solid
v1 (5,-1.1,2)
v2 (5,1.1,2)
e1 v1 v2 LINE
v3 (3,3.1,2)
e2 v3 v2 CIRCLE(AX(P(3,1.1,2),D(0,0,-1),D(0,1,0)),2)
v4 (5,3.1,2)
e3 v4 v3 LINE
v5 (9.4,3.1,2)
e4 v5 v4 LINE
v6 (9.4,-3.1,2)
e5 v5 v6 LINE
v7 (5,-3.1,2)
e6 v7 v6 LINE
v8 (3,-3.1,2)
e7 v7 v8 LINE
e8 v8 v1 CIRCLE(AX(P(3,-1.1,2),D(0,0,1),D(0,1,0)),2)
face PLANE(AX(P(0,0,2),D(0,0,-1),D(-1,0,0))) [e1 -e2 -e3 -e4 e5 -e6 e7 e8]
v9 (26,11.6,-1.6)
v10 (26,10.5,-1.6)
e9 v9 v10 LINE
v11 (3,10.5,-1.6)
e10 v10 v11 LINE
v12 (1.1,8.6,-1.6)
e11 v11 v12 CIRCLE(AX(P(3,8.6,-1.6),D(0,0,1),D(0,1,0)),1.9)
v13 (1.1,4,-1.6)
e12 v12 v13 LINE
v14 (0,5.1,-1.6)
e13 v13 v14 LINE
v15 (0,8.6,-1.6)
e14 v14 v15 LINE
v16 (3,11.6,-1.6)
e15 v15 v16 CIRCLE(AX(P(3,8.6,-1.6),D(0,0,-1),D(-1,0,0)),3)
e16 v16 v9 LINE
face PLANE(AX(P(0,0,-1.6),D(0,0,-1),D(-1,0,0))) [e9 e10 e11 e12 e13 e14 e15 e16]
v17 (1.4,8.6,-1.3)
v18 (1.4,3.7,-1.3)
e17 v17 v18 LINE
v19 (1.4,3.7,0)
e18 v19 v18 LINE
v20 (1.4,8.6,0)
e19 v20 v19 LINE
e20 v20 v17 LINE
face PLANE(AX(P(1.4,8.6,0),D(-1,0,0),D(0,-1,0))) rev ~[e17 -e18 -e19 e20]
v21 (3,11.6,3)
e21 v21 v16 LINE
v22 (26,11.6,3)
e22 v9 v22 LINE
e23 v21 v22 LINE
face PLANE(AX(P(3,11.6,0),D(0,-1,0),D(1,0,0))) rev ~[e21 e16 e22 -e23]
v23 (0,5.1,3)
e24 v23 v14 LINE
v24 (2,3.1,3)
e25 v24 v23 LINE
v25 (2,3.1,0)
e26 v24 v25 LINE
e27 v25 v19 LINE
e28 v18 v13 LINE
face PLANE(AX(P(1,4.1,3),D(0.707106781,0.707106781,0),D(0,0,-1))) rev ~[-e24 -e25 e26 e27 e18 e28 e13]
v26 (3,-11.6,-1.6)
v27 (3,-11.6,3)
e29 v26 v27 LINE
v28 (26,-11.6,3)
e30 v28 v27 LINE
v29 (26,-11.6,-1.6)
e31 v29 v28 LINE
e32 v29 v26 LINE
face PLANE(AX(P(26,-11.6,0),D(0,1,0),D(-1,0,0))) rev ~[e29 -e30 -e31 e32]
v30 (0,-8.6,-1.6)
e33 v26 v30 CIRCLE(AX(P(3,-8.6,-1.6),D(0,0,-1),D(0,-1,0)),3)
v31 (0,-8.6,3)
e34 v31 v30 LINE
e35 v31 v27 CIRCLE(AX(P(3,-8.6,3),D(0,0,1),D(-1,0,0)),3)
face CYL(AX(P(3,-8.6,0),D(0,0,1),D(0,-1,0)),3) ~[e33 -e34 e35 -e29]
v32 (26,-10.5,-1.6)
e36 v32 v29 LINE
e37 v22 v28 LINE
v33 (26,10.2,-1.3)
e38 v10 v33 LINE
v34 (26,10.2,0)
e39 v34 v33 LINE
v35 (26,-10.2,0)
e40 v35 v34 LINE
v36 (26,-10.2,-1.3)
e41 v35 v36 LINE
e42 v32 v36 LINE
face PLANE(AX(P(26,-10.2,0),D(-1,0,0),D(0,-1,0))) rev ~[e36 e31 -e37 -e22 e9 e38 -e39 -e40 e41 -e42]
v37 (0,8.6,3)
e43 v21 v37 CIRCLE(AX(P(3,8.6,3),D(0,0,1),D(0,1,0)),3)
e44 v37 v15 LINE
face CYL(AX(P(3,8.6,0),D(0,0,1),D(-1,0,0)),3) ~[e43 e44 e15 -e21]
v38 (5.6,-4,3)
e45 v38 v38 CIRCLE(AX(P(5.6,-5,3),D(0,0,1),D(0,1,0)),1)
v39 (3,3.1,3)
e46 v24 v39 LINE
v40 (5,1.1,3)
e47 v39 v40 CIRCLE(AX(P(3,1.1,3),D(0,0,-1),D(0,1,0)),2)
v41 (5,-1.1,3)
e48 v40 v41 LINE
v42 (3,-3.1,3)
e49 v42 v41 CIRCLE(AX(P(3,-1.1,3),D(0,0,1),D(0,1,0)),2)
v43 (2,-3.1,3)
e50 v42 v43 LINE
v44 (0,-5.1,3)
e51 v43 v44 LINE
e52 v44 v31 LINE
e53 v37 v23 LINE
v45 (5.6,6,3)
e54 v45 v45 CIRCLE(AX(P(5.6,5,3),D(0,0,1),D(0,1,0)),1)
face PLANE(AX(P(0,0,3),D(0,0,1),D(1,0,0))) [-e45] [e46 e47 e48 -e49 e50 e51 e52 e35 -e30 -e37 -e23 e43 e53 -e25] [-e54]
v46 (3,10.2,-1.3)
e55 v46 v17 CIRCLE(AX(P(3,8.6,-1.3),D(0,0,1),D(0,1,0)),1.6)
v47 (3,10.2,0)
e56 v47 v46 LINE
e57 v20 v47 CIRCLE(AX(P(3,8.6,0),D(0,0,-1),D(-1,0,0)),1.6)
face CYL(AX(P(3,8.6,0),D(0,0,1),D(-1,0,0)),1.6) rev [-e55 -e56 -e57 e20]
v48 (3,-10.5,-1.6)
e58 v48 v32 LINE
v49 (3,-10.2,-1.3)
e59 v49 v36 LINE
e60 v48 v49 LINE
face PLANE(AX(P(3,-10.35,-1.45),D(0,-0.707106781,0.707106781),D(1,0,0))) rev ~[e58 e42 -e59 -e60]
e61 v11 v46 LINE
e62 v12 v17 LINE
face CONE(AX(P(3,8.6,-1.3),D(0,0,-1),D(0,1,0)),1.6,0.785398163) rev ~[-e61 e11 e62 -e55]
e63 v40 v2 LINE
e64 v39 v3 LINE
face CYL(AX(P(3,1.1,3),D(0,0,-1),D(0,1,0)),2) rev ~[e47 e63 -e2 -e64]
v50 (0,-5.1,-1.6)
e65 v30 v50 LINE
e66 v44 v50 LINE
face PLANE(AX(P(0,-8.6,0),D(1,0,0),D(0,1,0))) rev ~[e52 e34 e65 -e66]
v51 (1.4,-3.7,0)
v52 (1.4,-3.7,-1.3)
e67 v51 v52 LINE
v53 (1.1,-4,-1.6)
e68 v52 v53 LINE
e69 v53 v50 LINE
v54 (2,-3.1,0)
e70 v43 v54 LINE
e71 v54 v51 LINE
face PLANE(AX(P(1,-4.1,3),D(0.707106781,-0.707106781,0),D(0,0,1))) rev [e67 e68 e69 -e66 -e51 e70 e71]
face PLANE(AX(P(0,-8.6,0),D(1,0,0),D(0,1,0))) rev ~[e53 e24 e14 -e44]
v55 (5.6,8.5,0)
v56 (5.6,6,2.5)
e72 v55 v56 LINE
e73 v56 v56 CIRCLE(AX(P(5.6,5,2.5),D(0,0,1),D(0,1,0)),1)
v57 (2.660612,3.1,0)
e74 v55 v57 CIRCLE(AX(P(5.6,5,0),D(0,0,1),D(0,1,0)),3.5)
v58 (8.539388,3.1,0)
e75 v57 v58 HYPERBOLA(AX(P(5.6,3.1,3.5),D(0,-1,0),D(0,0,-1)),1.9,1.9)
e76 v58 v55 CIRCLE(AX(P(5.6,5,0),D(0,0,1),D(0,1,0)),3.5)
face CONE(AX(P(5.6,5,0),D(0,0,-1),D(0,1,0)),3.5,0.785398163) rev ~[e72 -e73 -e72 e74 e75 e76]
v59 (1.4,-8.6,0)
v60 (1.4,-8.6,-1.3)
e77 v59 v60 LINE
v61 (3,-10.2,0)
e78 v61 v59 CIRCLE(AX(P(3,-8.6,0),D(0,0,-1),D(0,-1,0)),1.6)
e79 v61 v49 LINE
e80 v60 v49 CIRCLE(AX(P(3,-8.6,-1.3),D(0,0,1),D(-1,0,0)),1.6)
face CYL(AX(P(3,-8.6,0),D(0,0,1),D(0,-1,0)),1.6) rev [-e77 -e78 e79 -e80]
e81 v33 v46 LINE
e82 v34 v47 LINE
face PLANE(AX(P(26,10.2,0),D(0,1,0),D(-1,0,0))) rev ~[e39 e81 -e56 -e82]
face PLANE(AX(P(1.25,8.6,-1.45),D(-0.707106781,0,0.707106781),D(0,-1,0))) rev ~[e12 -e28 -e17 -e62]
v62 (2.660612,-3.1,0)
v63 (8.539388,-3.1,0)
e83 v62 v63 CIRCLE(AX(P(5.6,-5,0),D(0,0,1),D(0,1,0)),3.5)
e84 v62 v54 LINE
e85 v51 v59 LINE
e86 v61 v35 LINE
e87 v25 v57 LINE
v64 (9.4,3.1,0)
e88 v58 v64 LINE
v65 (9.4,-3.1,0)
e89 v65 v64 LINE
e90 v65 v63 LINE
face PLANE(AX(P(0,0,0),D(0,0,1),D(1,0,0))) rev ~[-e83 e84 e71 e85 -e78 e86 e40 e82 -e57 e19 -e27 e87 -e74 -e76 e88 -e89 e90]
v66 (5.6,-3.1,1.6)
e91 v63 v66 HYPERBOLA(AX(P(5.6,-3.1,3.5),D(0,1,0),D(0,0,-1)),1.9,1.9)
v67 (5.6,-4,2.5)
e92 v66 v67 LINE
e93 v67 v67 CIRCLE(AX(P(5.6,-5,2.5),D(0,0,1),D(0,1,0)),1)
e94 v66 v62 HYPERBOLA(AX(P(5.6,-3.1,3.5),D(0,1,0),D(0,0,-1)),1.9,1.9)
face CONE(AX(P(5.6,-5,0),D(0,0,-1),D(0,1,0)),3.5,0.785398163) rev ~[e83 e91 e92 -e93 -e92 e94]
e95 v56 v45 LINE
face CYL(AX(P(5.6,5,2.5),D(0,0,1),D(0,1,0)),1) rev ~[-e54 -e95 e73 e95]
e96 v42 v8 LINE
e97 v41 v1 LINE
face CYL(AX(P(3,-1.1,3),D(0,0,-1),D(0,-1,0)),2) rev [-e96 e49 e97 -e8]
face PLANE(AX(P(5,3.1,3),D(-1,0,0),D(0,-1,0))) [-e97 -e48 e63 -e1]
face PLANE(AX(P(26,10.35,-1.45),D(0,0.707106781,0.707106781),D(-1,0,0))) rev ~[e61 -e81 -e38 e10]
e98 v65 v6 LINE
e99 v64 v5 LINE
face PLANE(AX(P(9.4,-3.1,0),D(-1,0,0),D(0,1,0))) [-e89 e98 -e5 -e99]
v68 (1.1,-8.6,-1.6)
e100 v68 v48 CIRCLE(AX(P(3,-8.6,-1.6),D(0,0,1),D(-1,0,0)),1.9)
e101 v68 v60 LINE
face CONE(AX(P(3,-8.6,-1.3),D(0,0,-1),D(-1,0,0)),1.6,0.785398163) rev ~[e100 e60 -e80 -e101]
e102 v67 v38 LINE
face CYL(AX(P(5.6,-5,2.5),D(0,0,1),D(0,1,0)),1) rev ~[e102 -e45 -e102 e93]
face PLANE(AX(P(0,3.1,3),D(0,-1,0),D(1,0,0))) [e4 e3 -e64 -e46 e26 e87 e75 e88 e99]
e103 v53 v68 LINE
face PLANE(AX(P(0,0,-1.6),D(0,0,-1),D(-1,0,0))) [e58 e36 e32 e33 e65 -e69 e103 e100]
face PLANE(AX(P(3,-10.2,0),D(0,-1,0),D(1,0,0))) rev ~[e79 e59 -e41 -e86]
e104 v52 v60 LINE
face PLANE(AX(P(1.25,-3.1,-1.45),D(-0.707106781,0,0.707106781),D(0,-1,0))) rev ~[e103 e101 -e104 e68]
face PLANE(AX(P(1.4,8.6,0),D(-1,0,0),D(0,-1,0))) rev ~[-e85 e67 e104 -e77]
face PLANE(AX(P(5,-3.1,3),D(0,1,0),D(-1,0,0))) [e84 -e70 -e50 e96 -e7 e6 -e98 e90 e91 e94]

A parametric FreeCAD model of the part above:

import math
import FreeCAD as App
import Part
import Sketcher
from FreeCAD import Vector
Q = App.Units.Quantity


def edges_at(feature, points):
    """Names of the edges that pass closest to the given points."""
    edges = feature.Shape.Edges
    near = lambda p: min(range(len(edges)), key=lambda i: edges[i].distToShape(Part.Vertex(*p))[0])
    return sorted({f"Edge{near(p) + 1}" for p in points})


def add_polygon(sketch, points):
    """Adds a closed chain of lines whose ends are joined by coincident constraints."""
    first, n = sketch.GeometryCount, len(points)
    for a, b in zip(points, points[1:] + points[:1]):
        sketch.addGeometry(Part.LineSegment(App.Vector(*a, 0), App.Vector(*b, 0)), False)
    for i in range(n):
        sketch.addConstraint(Sketcher.Constraint("Coincident", first + i, 2, first + (i + 1) % n, 1))

doc = App.newDocument("Part")
body = doc.addObject("PartDesign::Body", "Body")

# Sketch on XY plane
sketch1 = doc.addObject("Sketcher::SketchObject", "Sketch")
body.addObject(sketch1)
sketch1.AttachmentSupport = (doc.XY_Plane, [""])
sketch1.MapMode = "FlatFace"
sketch1.addGeometry([
    Part.LineSegment(Vector(26, 11.6, 0), Vector(3, 11.6, 0)),  # 0
    Part.ArcOfCircle(Part.Circle(Vector(3, 8.6, 0), Vector(0, 0, 1), 3), math.radians(90), math.radians(180)),  # 1
    Part.LineSegment(Vector(0, 8.6, 0), Vector(0, -8.6, 0)),  # 2
    Part.ArcOfCircle(Part.Circle(Vector(3, -8.6, 0), Vector(0, 0, 1), 3), math.radians(180), math.radians(270)),  # 3
    Part.LineSegment(Vector(3, -11.6, 0), Vector(26, -11.6, 0)),  # 4
    Part.LineSegment(Vector(26, -11.6, 0), Vector(26, 11.6, 0)),  # 5
], False)
sketch1.addConstraint([
    Sketcher.Constraint("Tangent", 0, 2, 1, 1),
    Sketcher.Constraint("Tangent", 1, 2, 2, 1),
    Sketcher.Constraint("Tangent", 2, 2, 3, 1),
    Sketcher.Constraint("Tangent", 3, 2, 4, 1),
    Sketcher.Constraint("Coincident", 4, 2, 5, 1),
    Sketcher.Constraint("Coincident", 5, 2, 0, 1),
    Sketcher.Constraint("Horizontal", 0),
    Sketcher.Constraint("Vertical", 2),
    Sketcher.Constraint("Horizontal", 4),
    Sketcher.Constraint("Vertical", 5),
    Sketcher.Constraint("Equal", 1, 3),
    Sketcher.Constraint("Symmetric", 1, 2, 2, 2, -1, 1),
    Sketcher.Constraint("Radius", 1, Q("3 mm")),
    Sketcher.Constraint("DistanceY", 5, 1, 5, 2, Q("23.2 mm")),
    Sketcher.Constraint("DistanceX", -1, 1, 4, 2, Q("26 mm")),
])
pad1 = doc.addObject("PartDesign::Pad", "Pad")
body.addObject(pad1)
pad1.Profile = sketch1
pad1.Length = 3

# Sketch on XY plane
sketch2 = doc.addObject("Sketcher::SketchObject", "Sketch001")
body.addObject(sketch2)
sketch2.AttachmentSupport = (doc.XY_Plane, [""])
sketch2.MapMode = "FlatFace"
sketch2.addGeometry([
    Part.ArcOfCircle(Part.Circle(Vector(3, -8.6, 0), Vector(0, 0, 1), 3), math.radians(180), math.radians(270)),  # 0
    Part.LineSegment(Vector(0, -8.6, 0), Vector(0, 8.6, 0)),  # 1
    Part.ArcOfCircle(Part.Circle(Vector(3, 8.6, 0), Vector(0, 0, 1), 3), math.radians(90), math.radians(180)),  # 2
    Part.LineSegment(Vector(3, 11.6, 0), Vector(26, 11.6, 0)),  # 3
    Part.LineSegment(Vector(26, 11.6, 0), Vector(26, 10.2, 0)),  # 4
    Part.LineSegment(Vector(26, 10.2, 0), Vector(3, 10.2, 0)),  # 5
    Part.ArcOfCircle(Part.Circle(Vector(3, 8.6, 0), Vector(0, 0, 1), 1.6), math.radians(90), math.radians(180)),  # 6
    Part.LineSegment(Vector(1.4, 8.6, 0), Vector(1.4, -8.6, 0)),  # 7
    Part.ArcOfCircle(Part.Circle(Vector(3, -8.6, 0), Vector(0, 0, 1), 1.6), math.radians(180), math.radians(270)),  # 8
    Part.LineSegment(Vector(3, -10.2, 0), Vector(26, -10.2, 0)),  # 9
    Part.LineSegment(Vector(26, -10.2, 0), Vector(26, -11.6, 0)),  # 10
    Part.LineSegment(Vector(26, -11.6, 0), Vector(3, -11.6, 0)),  # 11
], False)
sketch2.addConstraint([
    Sketcher.Constraint("Tangent", 0, 1, 1, 1),
    Sketcher.Constraint("Tangent", 1, 2, 2, 2),
    Sketcher.Constraint("Tangent", 2, 1, 3, 1),
    Sketcher.Constraint("Coincident", 3, 2, 4, 1),
    Sketcher.Constraint("Coincident", 4, 2, 5, 1),
    Sketcher.Constraint("Tangent", 5, 2, 6, 1),
    Sketcher.Constraint("Tangent", 6, 2, 7, 1),
    Sketcher.Constraint("Tangent", 7, 2, 8, 1),
    Sketcher.Constraint("Tangent", 8, 2, 9, 1),
    Sketcher.Constraint("Coincident", 9, 2, 10, 1),
    Sketcher.Constraint("Coincident", 10, 2, 11, 1),
    Sketcher.Constraint("Tangent", 11, 2, 0, 2),
    Sketcher.Constraint("Vertical", 1),
    Sketcher.Constraint("Horizontal", 3),
    Sketcher.Constraint("Vertical", 4),
    Sketcher.Constraint("Horizontal", 5),
    Sketcher.Constraint("Vertical", 7),
    Sketcher.Constraint("Horizontal", 9),
    Sketcher.Constraint("Vertical", 10),
    Sketcher.Constraint("Horizontal", 11),
    Sketcher.Constraint("Coincident", 6, 3, 2, 3),
    Sketcher.Constraint("Coincident", 8, 3, 0, 3),
    Sketcher.Constraint("Equal", 0, 2),
    Sketcher.Constraint("Symmetric", 0, 1, 1, 2, -1, 1),
    Sketcher.Constraint("Vertical", 4, 2, 9, 2),
    Sketcher.Constraint("DistanceY", 4, 2, 4, 1, Q("1.4 mm")),
    Sketcher.Constraint("Radius", 0, Q("3 mm")),
    Sketcher.Constraint("DistanceX", 3, 1, 3, 2, Q("23 mm")),
    Sketcher.Constraint("DistanceY", 1, 1, 1, 2, Q("17.2 mm")),
])
pad2 = doc.addObject("PartDesign::Pad", "Pad001")
body.addObject(pad2)
pad2.Profile = sketch2
pad2.Length = 1.6
pad2.Reversed = True

# Sketch on XY plane
sketch3 = doc.addObject("Sketcher::SketchObject", "Sketch002")
body.addObject(sketch3)
sketch3.AttachmentSupport = (doc.XY_Plane, [""])
sketch3.MapMode = "FlatFace"
sketch3.AttachmentOffset = App.Placement(Vector(0, 0, 3), App.Rotation())
add_polygon(sketch3, [(5, 3.1), (0, 3.1), (0, -3.1), (5, -3.1)])  # lines 0-3
sketch3.addConstraint([
    Sketcher.Constraint("Horizontal", 0),
    Sketcher.Constraint("Vertical", 1),
    Sketcher.Constraint("Horizontal", 2),
    Sketcher.Constraint("Vertical", 3),
    Sketcher.Constraint("Symmetric", 0, 2, 1, 2, -1, 1),
    Sketcher.Constraint("DistanceX", 0, 2, 0, 1, Q("5 mm")),
    Sketcher.Constraint("DistanceY", 1, 2, 1, 1, Q("6.2 mm")),
])
pocket1 = doc.addObject("PartDesign::Pocket", "Pocket")
body.addObject(pocket1)
pocket1.Profile = sketch3
pocket1.Type = "ThroughAll"

# Sketch on XY plane
sketch4 = doc.addObject("Sketcher::SketchObject", "Sketch003")
body.addObject(sketch4)
sketch4.AttachmentSupport = (doc.XY_Plane, [""])
sketch4.MapMode = "FlatFace"
add_polygon(sketch4, [(9.4, -3.1), (5, -3.1), (5, 3.1), (9.4, 3.1)])  # lines 0-3
sketch4.addConstraint([
    Sketcher.Constraint("Horizontal", 0),
    Sketcher.Constraint("Vertical", 1),
    Sketcher.Constraint("Horizontal", 2),
    Sketcher.Constraint("Vertical", 3),
    Sketcher.Constraint("DistanceX", 0, 2, 0, 1, Q("4.4 mm")),
    Sketcher.Constraint("DistanceY", 1, 1, 1, 2, Q("6.2 mm")),
    Sketcher.Constraint("DistanceX", -1, 1, 0, 2, Q("5 mm")),
    Sketcher.Constraint("DistanceY", 0, 2, -1, 1, Q("3.1 mm")),
])
pocket2 = doc.addObject("PartDesign::Pocket", "Pocket001")
body.addObject(pocket2)
pocket2.Profile = sketch4
pocket2.Length = 2
pocket2.Reversed = True

# Sketch on XY plane
sketch5 = doc.addObject("Sketcher::SketchObject", "Sketch004")
body.addObject(sketch5)
sketch5.AttachmentSupport = (doc.XY_Plane, [""])
sketch5.MapMode = "FlatFace"
sketch5.addGeometry([
    Part.Circle(Vector(5.6, -5, 0), Vector(0, 0, 1), 1),
    Part.Circle(Vector(5.6, 5, 0), Vector(0, 0, 1), 1),
], False)
sketch5.addConstraint([
    Sketcher.Constraint("Equal", 0, 1),
    Sketcher.Constraint("Symmetric", 0, 3, 1, 3, -1),
    Sketcher.Constraint("Diameter", 0, Q("2 mm")),
    Sketcher.Constraint("DistanceY", 0, 3, -1, 1, Q("5 mm")),
    Sketcher.Constraint("DistanceX", -1, 1, 0, 3, Q("5.6 mm")),
])
doc.recompute()
hole = doc.addObject("PartDesign::Hole", "Hole")
body.addObject(hole)
hole.Profile = sketch5
hole.ThreadType = "None"
hole.Diameter = 2
hole.DepthType = "ThroughAll"
hole.HoleCutType = "Countersink"
hole.HoleCutDiameter = 7
hole.HoleCutCountersinkAngle = 90
hole.Reversed = True
doc.recompute()

fillet = doc.addObject("PartDesign::Fillet", "Fillet")
body.addObject(fillet)
fillet.Base = (hole, edges_at(hole, [(5, 3.1, 2.5), (5, -3.1, 2.5)]))
fillet.Radius = 2
doc.recompute()

chamfer = doc.addObject("PartDesign::Chamfer", "Chamfer")
body.addObject(chamfer)
chamfer.Base = (fillet, edges_at(fillet, [
    (14.5, -10.2, -1.6),
    (1.869, -9.731, -1.6),
    (1.4, -5.85, -1.6),
    (14.5, 10.2, -1.6),
    (1.869, 9.731, -1.6),
    (1.4, 5.85, -1.6),
]))
chamfer.Size = 0.3
doc.recompute()

chamfer2 = doc.addObject("PartDesign::Chamfer", "Chamfer001")
body.addObject(chamfer2)
chamfer2.Base = (chamfer, edges_at(chamfer, [(0, 3.1, 0.7), (0, -3.1, 0.7)]))
chamfer2.Size = 2

doc.recompute()
